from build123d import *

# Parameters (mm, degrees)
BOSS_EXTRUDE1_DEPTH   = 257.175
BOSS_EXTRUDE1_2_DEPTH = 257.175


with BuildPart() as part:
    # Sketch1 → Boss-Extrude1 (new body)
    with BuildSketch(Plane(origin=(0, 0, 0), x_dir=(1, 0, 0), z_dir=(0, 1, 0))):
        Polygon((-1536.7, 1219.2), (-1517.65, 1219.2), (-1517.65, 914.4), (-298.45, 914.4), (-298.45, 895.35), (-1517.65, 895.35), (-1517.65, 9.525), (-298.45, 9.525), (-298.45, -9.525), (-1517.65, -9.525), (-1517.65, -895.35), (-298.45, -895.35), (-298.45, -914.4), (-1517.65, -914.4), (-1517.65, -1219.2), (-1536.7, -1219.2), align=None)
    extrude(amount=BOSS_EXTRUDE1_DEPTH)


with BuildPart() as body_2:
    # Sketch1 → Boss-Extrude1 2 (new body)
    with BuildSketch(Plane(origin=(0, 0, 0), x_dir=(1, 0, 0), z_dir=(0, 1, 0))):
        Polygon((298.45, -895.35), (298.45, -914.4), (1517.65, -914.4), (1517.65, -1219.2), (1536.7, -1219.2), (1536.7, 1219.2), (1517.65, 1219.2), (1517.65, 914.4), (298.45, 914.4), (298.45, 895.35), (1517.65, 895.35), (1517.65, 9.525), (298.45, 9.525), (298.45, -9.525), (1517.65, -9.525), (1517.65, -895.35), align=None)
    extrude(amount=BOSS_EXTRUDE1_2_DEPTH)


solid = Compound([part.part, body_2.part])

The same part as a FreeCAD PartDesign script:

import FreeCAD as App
import Part
import Sketcher

V = App.Vector
Q = App.Units.Quantity


def add_polygon(sketch, points):
    """Adds a closed chain of lines whose ends are joined by coincident constraints."""
    first, n = sketch.GeometryCount, len(points)
    for a, b in zip(points, points[1:] + points[:1]):
        sketch.addGeometry(Part.LineSegment(App.Vector(*a, 0), App.Vector(*b, 0)), False)
    for i in range(n):
        sketch.addConstraint(Sketcher.Constraint("Coincident", first + i, 2, first + (i + 1) % n, 1))

doc = App.newDocument("Part")
params = doc.addObject("Spreadsheet::Sheet", "Params")
for row, (alias, value) in enumerate([
    ("sketch1_width", "48 in"),
    ("sketch1_height", "96 in"),
    ("sketch1_height2", "12 in"),
    ("sketch1_width2", "0.75 in"),
    ("pad1_length", "10.125 in"),
    ("sketch2_width", "48 in"),
    ("sketch2_height", "12 in"),
    ("sketch2_height2", "96 in"),
    ("sketch2_width2", "0.75 in"),
    ("pad2_length", "10.125 in"),
], start=1):
    params.set(f"A{row}", alias)
    params.set(f"B{row}", "=" + value)
    params.setAlias(f"B{row}", alias)

body = doc.addObject("PartDesign::Body", "Body")

# Sketch on XZ plane
sketch1 = body.newObject("Sketcher::SketchObject", "Sketch")
sketch1.AttachmentSupport = (doc.getObject("XZ_Plane"), [""])
sketch1.MapMode = "FlatFace"
add_polygon(sketch1, [(-1518, -1219), (-1537, -1219), (-1537, 1219), (-1518, 1219), (-1518, 914), (-298, 914), (-298, 895), (-1518, 895), (-1518, 10), (-298, 10), (-298, -10), (-1518, -10), (-1518, -895), (-298, -895), (-298, -914), (-1518, -914)])  # lines 0-15
sketch1.addConstraint([
    Sketcher.Constraint("Horizontal", 0),
    Sketcher.Constraint("Vertical", 1),
    Sketcher.Constraint("Horizontal", 2),
    Sketcher.Constraint("Vertical", 3),
    Sketcher.Constraint("Horizontal", 4),
    Sketcher.Constraint("Vertical", 5),
    Sketcher.Constraint("Horizontal", 6),
    Sketcher.Constraint("Vertical", 7),
    Sketcher.Constraint("Horizontal", 8),
    Sketcher.Constraint("Vertical", 9),
    Sketcher.Constraint("Horizontal", 10),
    Sketcher.Constraint("Vertical", 11),
    Sketcher.Constraint("Horizontal", 12),
    Sketcher.Constraint("Vertical", 13),
    Sketcher.Constraint("Horizontal", 14),
    Sketcher.Constraint("Vertical", 15),
    Sketcher.Constraint("Symmetric", 7, 2, 10, 2, -1),
    Sketcher.Constraint("Symmetric", 5, 2, 12, 2, -1),
    Sketcher.Constraint("Symmetric", 3, 2, 14, 2, -1),
    Sketcher.Constraint("Vertical", 3, 2, 6, 2),
    Sketcher.Constraint("Vertical", 5, 2, 8, 2),
    Sketcher.Constraint("Equal", 2, 5),
    Sketcher.Constraint("Equal", 5, 9),
    Sketcher.Constraint("Equal", 3, 15),
    Sketcher.Constraint("DistanceX", 4, 1, 4, 2, Q("48 in")),
    Sketcher.Constraint("DistanceY", 1, 1, 1, 2, Q("96 in")),
    Sketcher.Constraint("DistanceY", 3, 2, 3, 1, Q("12 in")),
    Sketcher.Constraint("DistanceX", 0, 2, 0, 1, Q("0.75 in")),
    Sketcher.Constraint("DistanceX", 0, 2, -1, 1, Q("60.5 in")),
])
sketch1.setExpression("Constraints[40]", "Params.sketch1_width")
sketch1.setExpression("Constraints[41]", "Params.sketch1_height")
sketch1.setExpression("Constraints[42]", "Params.sketch1_height2")
sketch1.setExpression("Constraints[43]", "Params.sketch1_width2")
pad1 = body.newObject("PartDesign::Pad", "Pad")
pad1.Profile = sketch1
pad1.setExpression("Length", "Params.pad1_length")
pad1.Reversed = True
body2 = doc.addObject("PartDesign::Body", "Body001")

# Sketch on XZ plane
sketch2 = body2.newObject("Sketcher::SketchObject", "Sketch001")
sketch2.AttachmentSupport = (doc.getObject("XZ_Plane001"), [""])
sketch2.MapMode = "FlatFace"
add_polygon(sketch2, [(298, 895), (298, 914), (1518, 914), (1518, 1219), (1537, 1219), (1537, -1219), (1518, -1219), (1518, -914), (298, -914), (298, -895), (1518, -895), (1518, -10), (298, -10), (298, 10), (1518, 10), (1518, 895)])  # lines 0-15
sketch2.addConstraint([
    Sketcher.Constraint("Vertical", 0),
    Sketcher.Constraint("Horizontal", 1),
    Sketcher.Constraint("Vertical", 2),
    Sketcher.Constraint("Horizontal", 3),
    Sketcher.Constraint("Vertical", 4),
    Sketcher.Constraint("Horizontal", 5),
    Sketcher.Constraint("Vertical", 6),
    Sketcher.Constraint("Horizontal", 7),
    Sketcher.Constraint("Vertical", 8),
    Sketcher.Constraint("Horizontal", 9),
    Sketcher.Constraint("Vertical", 10),
    Sketcher.Constraint("Horizontal", 11),
    Sketcher.Constraint("Vertical", 12),
    Sketcher.Constraint("Horizontal", 13),
    Sketcher.Constraint("Vertical", 14),
    Sketcher.Constraint("Horizontal", 15),
    Sketcher.Constraint("Symmetric", 2, 2, 5, 2, -1),
    Sketcher.Constraint("Symmetric", 0, 2, 7, 2, -1),
    Sketcher.Constraint("Symmetric", 10, 2, 13, 2, -1),
    Sketcher.Constraint("Vertical", 6, 2, 9, 2),
    Sketcher.Constraint("Vertical", 8, 2, 11, 2),
    Sketcher.Constraint("Equal", 5, 0),
    Sketcher.Constraint("Equal", 0, 8),
    Sketcher.Constraint("Equal", 8, 12),
    Sketcher.Constraint("DistanceX", 1, 1, 1, 2, Q("48 in")),
    Sketcher.Constraint("DistanceY", 2, 1, 2, 2, Q("12 in")),
    Sketcher.Constraint("DistanceY", 4, 2, 4, 1, Q("96 in")),
    Sketcher.Constraint("DistanceX", 3, 1, 3, 2, Q("0.75 in")),
    Sketcher.Constraint("DistanceX", -1, 1, 3, 2, Q("60.5 in")),
])
sketch2.setExpression("Constraints[40]", "Params.sketch2_width")
sketch2.setExpression("Constraints[41]", "Params.sketch2_height")
sketch2.setExpression("Constraints[42]", "Params.sketch2_height2")
sketch2.setExpression("Constraints[43]", "Params.sketch2_width2")
pad2 = body2.newObject("PartDesign::Pad", "Pad001")
pad2.Profile = sketch2
pad2.setExpression("Length", "Params.pad2_length")
pad2.Reversed = True

doc.recompute()
